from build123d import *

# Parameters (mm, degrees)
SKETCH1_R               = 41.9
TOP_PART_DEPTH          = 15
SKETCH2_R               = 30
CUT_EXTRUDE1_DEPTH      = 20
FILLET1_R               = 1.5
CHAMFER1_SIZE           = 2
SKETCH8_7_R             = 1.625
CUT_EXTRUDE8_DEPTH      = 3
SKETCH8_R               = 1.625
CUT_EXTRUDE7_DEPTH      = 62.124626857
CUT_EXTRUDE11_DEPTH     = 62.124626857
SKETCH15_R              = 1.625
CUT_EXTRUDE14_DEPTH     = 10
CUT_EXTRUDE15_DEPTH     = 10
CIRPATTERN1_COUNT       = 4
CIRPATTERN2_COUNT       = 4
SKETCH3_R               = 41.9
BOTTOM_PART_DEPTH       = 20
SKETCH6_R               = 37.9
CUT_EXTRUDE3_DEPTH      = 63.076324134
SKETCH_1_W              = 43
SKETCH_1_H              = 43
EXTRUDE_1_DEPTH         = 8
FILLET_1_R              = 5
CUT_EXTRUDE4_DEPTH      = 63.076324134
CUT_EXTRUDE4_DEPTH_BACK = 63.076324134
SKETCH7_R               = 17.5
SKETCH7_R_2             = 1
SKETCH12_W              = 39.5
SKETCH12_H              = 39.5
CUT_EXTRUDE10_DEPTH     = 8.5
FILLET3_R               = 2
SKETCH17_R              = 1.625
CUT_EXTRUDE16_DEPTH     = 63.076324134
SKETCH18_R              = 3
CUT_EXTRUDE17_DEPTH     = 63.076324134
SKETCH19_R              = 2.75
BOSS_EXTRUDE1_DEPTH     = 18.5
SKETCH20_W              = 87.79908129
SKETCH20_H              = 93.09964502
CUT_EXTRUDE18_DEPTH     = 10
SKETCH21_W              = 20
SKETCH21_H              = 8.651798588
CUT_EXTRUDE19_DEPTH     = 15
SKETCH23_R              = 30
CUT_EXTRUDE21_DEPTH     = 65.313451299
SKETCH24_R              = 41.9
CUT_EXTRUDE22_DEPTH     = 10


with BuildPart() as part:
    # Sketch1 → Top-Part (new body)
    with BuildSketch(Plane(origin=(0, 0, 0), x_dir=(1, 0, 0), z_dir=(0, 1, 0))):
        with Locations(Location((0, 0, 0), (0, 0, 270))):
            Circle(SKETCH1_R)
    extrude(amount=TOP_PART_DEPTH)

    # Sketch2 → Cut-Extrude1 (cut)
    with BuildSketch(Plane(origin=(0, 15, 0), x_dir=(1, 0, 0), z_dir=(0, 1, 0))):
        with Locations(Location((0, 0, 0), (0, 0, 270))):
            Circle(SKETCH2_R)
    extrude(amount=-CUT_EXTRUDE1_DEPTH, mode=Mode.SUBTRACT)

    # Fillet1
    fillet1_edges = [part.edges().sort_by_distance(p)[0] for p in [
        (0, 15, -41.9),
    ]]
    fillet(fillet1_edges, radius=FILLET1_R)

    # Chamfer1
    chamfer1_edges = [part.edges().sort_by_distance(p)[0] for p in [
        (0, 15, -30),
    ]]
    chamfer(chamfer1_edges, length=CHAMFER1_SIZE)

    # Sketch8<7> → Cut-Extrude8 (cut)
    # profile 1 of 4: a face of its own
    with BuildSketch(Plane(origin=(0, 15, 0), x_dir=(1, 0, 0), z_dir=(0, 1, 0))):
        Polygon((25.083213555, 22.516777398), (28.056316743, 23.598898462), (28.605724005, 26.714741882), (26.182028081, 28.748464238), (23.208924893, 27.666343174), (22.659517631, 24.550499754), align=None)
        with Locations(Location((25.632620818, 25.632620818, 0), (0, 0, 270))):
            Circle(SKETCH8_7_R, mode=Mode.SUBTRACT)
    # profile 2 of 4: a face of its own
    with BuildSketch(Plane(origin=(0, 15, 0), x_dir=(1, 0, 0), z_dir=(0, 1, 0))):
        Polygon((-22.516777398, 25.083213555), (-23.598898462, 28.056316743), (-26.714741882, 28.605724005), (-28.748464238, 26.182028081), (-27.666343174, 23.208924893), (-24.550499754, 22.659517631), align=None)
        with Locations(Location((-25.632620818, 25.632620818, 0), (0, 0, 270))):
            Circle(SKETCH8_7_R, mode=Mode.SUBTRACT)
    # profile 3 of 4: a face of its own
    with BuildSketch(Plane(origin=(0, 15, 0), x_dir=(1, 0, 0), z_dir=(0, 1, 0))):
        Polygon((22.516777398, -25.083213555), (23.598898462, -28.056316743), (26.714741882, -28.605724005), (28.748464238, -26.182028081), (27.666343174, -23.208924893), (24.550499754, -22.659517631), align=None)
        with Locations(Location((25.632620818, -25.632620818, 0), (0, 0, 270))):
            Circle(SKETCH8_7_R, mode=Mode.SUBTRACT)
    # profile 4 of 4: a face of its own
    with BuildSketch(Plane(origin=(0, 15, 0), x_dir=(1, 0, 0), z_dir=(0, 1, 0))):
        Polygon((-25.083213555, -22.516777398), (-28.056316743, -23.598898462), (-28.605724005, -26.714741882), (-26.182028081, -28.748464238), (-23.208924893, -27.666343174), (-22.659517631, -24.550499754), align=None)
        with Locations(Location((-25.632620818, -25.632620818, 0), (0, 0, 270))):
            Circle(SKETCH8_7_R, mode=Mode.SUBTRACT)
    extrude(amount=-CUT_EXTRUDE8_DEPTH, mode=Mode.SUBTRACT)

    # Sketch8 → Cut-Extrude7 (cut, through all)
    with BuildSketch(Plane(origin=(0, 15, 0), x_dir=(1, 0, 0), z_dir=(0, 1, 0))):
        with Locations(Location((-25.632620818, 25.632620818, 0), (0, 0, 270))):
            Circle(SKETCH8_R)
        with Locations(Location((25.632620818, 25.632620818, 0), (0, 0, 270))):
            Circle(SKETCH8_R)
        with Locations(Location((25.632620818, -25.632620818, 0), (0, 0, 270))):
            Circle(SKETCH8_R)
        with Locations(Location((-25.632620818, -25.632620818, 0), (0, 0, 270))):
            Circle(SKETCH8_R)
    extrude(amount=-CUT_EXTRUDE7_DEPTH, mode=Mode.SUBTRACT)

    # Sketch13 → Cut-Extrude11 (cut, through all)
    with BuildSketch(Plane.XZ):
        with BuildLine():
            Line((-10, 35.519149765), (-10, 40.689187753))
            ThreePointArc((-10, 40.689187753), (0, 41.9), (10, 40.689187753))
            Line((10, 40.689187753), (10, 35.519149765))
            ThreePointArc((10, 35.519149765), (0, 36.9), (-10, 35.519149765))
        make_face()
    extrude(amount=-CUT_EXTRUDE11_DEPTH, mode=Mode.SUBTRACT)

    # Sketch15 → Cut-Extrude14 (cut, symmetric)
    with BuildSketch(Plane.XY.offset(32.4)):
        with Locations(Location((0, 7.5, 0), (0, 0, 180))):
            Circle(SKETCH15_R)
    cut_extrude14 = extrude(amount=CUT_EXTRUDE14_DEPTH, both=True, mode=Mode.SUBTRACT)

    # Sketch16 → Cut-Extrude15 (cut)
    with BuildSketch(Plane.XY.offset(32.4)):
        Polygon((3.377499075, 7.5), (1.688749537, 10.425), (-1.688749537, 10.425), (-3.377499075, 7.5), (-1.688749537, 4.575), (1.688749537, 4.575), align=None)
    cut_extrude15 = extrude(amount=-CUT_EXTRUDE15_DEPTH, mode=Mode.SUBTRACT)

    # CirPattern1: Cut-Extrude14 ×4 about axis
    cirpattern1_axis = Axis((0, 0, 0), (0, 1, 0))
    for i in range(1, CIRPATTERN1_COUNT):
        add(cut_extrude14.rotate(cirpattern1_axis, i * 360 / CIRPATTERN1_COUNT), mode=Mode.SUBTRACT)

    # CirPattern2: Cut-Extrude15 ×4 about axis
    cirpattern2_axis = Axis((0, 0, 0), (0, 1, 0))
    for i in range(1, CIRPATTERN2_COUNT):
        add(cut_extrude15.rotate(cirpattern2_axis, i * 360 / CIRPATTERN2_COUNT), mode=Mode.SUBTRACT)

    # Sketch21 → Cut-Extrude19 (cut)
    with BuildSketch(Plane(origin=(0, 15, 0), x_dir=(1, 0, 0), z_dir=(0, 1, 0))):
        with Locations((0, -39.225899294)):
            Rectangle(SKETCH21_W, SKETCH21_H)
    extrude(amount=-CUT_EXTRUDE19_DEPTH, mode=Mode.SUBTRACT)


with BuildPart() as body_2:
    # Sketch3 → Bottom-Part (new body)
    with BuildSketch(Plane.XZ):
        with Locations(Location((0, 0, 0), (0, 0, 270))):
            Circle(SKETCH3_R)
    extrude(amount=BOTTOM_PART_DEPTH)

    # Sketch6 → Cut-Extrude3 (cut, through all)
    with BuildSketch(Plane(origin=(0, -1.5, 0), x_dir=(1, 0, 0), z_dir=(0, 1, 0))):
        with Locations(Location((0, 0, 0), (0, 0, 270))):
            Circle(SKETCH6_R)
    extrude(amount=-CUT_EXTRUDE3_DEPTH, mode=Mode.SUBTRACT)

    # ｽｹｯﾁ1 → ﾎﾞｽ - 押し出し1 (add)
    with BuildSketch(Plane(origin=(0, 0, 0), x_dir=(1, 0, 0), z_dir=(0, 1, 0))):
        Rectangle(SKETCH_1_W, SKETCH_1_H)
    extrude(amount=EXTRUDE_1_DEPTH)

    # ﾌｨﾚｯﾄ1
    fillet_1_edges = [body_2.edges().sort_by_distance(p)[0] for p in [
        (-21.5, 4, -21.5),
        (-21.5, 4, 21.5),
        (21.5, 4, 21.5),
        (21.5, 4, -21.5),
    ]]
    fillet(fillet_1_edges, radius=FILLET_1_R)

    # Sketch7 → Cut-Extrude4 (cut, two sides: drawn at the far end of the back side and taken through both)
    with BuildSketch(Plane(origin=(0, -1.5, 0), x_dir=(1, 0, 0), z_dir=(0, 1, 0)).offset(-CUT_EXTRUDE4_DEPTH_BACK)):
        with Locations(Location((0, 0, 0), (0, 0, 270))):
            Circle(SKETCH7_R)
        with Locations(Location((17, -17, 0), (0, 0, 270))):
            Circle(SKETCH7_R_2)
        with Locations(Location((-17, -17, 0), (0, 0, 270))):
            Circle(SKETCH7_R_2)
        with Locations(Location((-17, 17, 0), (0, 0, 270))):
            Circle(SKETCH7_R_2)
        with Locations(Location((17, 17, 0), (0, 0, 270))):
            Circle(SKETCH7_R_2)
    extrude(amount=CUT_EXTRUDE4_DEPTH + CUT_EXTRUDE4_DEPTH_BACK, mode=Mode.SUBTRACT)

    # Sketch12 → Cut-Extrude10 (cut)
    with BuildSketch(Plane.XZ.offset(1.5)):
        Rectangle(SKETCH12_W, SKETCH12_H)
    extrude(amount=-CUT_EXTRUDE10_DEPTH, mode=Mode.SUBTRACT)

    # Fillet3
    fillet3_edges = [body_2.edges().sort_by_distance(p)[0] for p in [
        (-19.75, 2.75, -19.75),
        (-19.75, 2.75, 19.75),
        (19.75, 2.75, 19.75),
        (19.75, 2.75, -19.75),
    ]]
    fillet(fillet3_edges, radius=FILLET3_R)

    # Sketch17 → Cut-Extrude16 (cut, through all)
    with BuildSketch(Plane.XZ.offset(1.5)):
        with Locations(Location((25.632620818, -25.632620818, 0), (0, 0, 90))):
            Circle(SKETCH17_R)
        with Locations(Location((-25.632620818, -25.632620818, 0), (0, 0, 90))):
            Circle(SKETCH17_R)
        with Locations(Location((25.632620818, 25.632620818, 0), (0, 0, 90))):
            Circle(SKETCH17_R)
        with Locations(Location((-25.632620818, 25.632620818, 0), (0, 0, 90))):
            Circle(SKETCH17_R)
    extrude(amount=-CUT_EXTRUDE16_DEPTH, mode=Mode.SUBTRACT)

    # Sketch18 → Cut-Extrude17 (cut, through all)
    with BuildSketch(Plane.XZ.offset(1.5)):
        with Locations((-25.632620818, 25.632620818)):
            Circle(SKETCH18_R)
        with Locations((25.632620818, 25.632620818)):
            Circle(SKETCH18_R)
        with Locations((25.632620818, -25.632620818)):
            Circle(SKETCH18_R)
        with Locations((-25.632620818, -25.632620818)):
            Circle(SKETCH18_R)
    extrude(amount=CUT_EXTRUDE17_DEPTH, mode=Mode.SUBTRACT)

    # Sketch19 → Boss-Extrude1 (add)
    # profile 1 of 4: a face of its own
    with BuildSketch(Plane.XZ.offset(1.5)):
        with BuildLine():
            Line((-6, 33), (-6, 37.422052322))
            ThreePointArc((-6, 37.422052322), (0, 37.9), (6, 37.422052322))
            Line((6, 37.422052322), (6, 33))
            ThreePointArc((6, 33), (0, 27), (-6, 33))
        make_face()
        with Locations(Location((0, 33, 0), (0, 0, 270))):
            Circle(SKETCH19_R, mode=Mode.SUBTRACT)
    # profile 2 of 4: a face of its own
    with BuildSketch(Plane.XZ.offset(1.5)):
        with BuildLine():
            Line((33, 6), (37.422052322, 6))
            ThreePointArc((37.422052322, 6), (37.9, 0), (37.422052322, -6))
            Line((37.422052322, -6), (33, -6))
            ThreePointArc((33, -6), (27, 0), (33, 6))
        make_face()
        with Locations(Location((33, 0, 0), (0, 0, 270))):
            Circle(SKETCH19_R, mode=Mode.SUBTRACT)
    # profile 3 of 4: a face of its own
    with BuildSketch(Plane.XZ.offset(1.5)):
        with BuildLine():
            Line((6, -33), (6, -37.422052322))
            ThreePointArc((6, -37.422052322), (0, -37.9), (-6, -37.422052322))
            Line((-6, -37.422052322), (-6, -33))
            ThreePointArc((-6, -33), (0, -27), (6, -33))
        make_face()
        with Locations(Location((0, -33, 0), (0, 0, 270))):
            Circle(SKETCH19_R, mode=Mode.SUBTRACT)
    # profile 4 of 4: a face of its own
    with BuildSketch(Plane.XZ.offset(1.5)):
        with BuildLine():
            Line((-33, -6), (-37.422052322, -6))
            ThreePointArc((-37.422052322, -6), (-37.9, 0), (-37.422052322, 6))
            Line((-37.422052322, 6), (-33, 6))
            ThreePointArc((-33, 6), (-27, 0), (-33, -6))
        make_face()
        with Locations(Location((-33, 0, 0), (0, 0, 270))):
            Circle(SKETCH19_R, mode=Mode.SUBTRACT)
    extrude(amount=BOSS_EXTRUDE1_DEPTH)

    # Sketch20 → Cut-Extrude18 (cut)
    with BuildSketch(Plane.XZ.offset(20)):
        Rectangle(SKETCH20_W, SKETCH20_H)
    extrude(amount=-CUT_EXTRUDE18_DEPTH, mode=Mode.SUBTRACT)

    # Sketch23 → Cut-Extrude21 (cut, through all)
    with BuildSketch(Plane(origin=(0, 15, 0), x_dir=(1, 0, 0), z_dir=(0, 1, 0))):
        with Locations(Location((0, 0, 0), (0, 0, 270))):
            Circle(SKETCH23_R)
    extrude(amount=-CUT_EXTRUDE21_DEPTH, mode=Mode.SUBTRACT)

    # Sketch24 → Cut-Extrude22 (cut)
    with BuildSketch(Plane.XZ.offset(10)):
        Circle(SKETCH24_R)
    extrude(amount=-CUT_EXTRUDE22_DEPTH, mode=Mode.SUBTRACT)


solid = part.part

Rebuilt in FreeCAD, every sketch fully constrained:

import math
import FreeCAD as App
import Part
import Sketcher
from FreeCAD import Vector
Q = App.Units.Quantity


def edges_at(feature, points):
    """Names of the edges that pass closest to the given points."""
    edges = feature.Shape.Edges
    near = lambda p: min(range(len(edges)), key=lambda i: edges[i].distToShape(Part.Vertex(*p))[0])
    return sorted({f"Edge{near(p) + 1}" for p in points})


def add_polygon(sketch, points):
    """Adds a closed chain of lines whose ends are joined by coincident constraints."""
    first, n = sketch.GeometryCount, len(points)
    for a, b in zip(points, points[1:] + points[:1]):
        sketch.addGeometry(Part.LineSegment(App.Vector(*a, 0), App.Vector(*b, 0)), False)
    for i in range(n):
        sketch.addConstraint(Sketcher.Constraint("Coincident", first + i, 2, first + (i + 1) % n, 1))

doc = App.newDocument("Part")
params = doc.addObject("Spreadsheet::Sheet", "Params")
for row, (alias, value) in enumerate([
    ("sketch1_diameter", "83.8 mm"),
    ("pad1_length", "15 mm"),
    ("sketch2_diameter", "60 mm"),
    ("pocket1_length", "20 mm"),
    ("fillet_radius", "1.5 mm"),
    ("chamfer_size", "2 mm"),
    ("sketch3_diameter", "3.25 mm"),
    ("pocket2_length", "3 mm"),
    ("sketch4_diameter", "3.25 mm"),
    ("sketch5_radius", "36.9 mm"),
    ("sketch5_radius2", "41.9 mm"),
    ("sketch6_diameter", "3.25 mm"),
    ("pocket5_length", "20 mm"),
    ("pocket6_length", "10 mm"),
    ("sketch8_width", "20 mm"),
    ("pocket7_length", "15 mm"),
    ("sketch9_diameter", "83.8 mm"),
    ("pad2_length", "20 mm"),
    ("sketch10_diameter", "75.8 mm"),
    ("sketch11_width", "43 mm"),
    ("pad3_length", "8 mm"),
    ("fillet2_radius", "5 mm"),
    ("sketch12_diameter", "35 mm"),
    ("sketch12_diameter2", "2 mm"),
    ("sketch13_width", "39.5 mm"),
    ("pocket10_length", "8.5 mm"),
    ("fillet3_radius", "2 mm"),
    ("sketch14_diameter", "3.25 mm"),
    ("sketch15_diameter", "6 mm"),
    ("sketch16_radius", "6 mm"),
    ("sketch16_diameter", "5.5 mm"),
    ("sketch16_radius2", "37.9 mm"),
    ("pad4_length", "18.5 mm"),
    ("pocket13_length", "10 mm"),
    ("sketch18_diameter", "60 mm"),
    ("sketch19_diameter", "83.8 mm"),
    ("pocket15_length", "10 mm"),
], start=1):
    params.set(f"A{row}", alias)
    params.set(f"B{row}", "=" + value)
    params.setAlias(f"B{row}", alias)

body = doc.addObject("PartDesign::Body", "Body")

# Sketch on XZ plane
sketch1 = body.newObject("Sketcher::SketchObject", "Sketch")
sketch1.AttachmentSupport = (doc.getObject("XZ_Plane"), [""])
sketch1.MapMode = "FlatFace"
sketch1.addGeometry(Part.Circle(Vector(0, 0, 0), Vector(0, 0, 1), 41.9), False)
sketch1.addConstraint([
    Sketcher.Constraint("Coincident", 0, 3, -1, 1),
    Sketcher.Constraint("Diameter", 0, Q("83.8 mm")),
])
sketch1.setExpression("Constraints[1]", "Params.sketch1_diameter")
pad1 = body.newObject("PartDesign::Pad", "Pad")
pad1.Profile = sketch1
pad1.setExpression("Length", "Params.pad1_length")
pad1.Reversed = True

# Sketch on XZ plane
sketch2 = body.newObject("Sketcher::SketchObject", "Sketch001")
sketch2.AttachmentSupport = (doc.getObject("XZ_Plane"), [""])
sketch2.MapMode = "FlatFace"
sketch2.AttachmentOffset = App.Placement(Vector(0, 0, -15), App.Rotation())
sketch2.addGeometry(Part.Circle(Vector(0, 0, 0), Vector(0, 0, 1), 30), False)
sketch2.addConstraint([
    Sketcher.Constraint("Coincident", 0, 3, -1, 1),
    Sketcher.Constraint("Diameter", 0, Q("60 mm")),
])
sketch2.setExpression("Constraints[1]", "Params.sketch2_diameter")
pocket1 = body.newObject("PartDesign::Pocket", "Pocket")
pocket1.Profile = sketch2
pocket1.setExpression("Length", "Params.pocket1_length")
pocket1.Reversed = True
doc.recompute()

fillet = body.newObject("PartDesign::Fillet", "Fillet")
fillet.Base = (pocket1, edges_at(pocket1, [(0, 15, -41.9)]))
fillet.setExpression("Radius", "Params.fillet_radius")
doc.recompute()

chamfer = body.newObject("PartDesign::Chamfer", "Chamfer")
chamfer.Base = (fillet, edges_at(fillet, [(0, 15, -30)]))
chamfer.setExpression("Size", "Params.chamfer_size")

# Sketch on XZ plane
sketch3 = body.newObject("Sketcher::SketchObject", "Sketch002")
sketch3.AttachmentSupport = (doc.getObject("XZ_Plane"), [""])
sketch3.MapMode = "FlatFace"
sketch3.AttachmentOffset = App.Placement(Vector(0, 0, -15), App.Rotation())
add_polygon(sketch3, [(25.083214, -22.516777), (28.056317, -23.598898), (28.605724, -26.714742), (26.182028, -28.748464), (23.208925, -27.666343), (22.659518, -24.5505)])  # lines 0-5
sketch3.addGeometry(Part.Circle(Vector(25.632621, -25.632621, 0), Vector(0, 0, 1), 1.625), False)  # 6
add_polygon(sketch3, [(-22.516777, -25.083214), (-23.598898, -28.056317), (-26.714742, -28.605724), (-28.748464, -26.182028), (-27.666343, -23.208925), (-24.5505, -22.659518)])  # lines 7-12
sketch3.addGeometry(Part.Circle(Vector(-25.632621, -25.632621, 0), Vector(0, 0, 1), 1.625), False)  # 13
add_polygon(sketch3, [(22.516777, 25.083214), (23.598898, 28.056317), (26.714742, 28.605724), (28.748464, 26.182028), (27.666343, 23.208925), (24.5505, 22.659518)])  # lines 14-19
sketch3.addGeometry(Part.Circle(Vector(25.632621, 25.632621, 0), Vector(0, 0, 1), 1.625), False)  # 20
add_polygon(sketch3, [(-25.083214, 22.516777), (-28.056317, 23.598898), (-28.605724, 26.714742), (-26.182028, 28.748464), (-23.208925, 27.666343), (-22.659518, 24.5505)])  # lines 21-26
sketch3.addGeometry(Part.Circle(Vector(-25.632621, 25.632621, 0), Vector(0, 0, 1), 1.625), False)  # 27
sketch3.addConstraint([
    Sketcher.Constraint("Equal", 6, 13),
    Sketcher.Constraint("Equal", 13, 20),
    Sketcher.Constraint("Equal", 20, 27),
    Sketcher.Constraint("Symmetric", 13, 3, 20, 3, -1, 1),
    Sketcher.Constraint("Symmetric", 6, 3, 27, 3, -1, 1),
    Sketcher.Constraint("Symmetric", 7, 2, 14, 2, -1, 1),
    Sketcher.Constraint("Symmetric", 8, 2, 15, 2, -1, 1),
    Sketcher.Constraint("Symmetric", 9, 2, 16, 2, -1, 1),
    Sketcher.Constraint("Symmetric", 10, 2, 17, 2, -1, 1),
    Sketcher.Constraint("Symmetric", 11, 2, 18, 2, -1, 1),
    Sketcher.Constraint("Symmetric", 12, 2, 19, 2, -1, 1),
    Sketcher.Constraint("Symmetric", 0, 2, 21, 2, -1, 1),
    Sketcher.Constraint("Symmetric", 1, 2, 22, 2, -1, 1),
    Sketcher.Constraint("Symmetric", 2, 2, 23, 2, -1, 1),
    Sketcher.Constraint("Symmetric", 3, 2, 24, 2, -1, 1),
    Sketcher.Constraint("Symmetric", 4, 2, 25, 2, -1, 1),
    Sketcher.Constraint("Symmetric", 5, 2, 26, 2, -1, 1),
    Sketcher.Constraint("Symmetric", 6, 3, 13, 3, -2),
    Sketcher.Constraint("Parallel", 0, 3),
    Sketcher.Constraint("Parallel", 1, 4),
    Sketcher.Constraint("Parallel", 2, 5),
    Sketcher.Constraint("Perpendicular", 3, 7),
    Sketcher.Constraint("Perpendicular", 4, 8),
    Sketcher.Constraint("Perpendicular", 5, 9),
    Sketcher.Constraint("Parallel", 7, 10),
    Sketcher.Constraint("Parallel", 8, 11),
    Sketcher.Constraint("Parallel", 9, 12),
    Sketcher.Constraint("Equal", 0, 1),
    Sketcher.Constraint("Equal", 1, 2),
    Sketcher.Constraint("Equal", 2, 3),
    Sketcher.Constraint("Equal", 5, 7),
    Sketcher.Constraint("Equal", 7, 8),
    Sketcher.Constraint("Equal", 8, 9),
    Sketcher.Constraint("Equal", 9, 10),
    Sketcher.Constraint("Diameter", 6, Q("3.25 mm")),
    Sketcher.Constraint("Angle", 0, Q("-20 deg")),
    Sketcher.Constraint("Angle", 1, Q("-80 deg")),
    Sketcher.Constraint("Angle", 2, Q("-140 deg")),
    Sketcher.Constraint("DistanceY", 0, 2, -1, 1, Q("23.598898 mm")),
    Sketcher.Constraint("DistanceY", 4, 2, -1, 1, Q("24.5505 mm")),
    Sketcher.Constraint("DistanceX", 7, 2, -1, 1, Q("23.598898 mm")),
    Sketcher.Constraint("DistanceY", 5, 2, 15, 2, Q("51.122501 mm")),
    Sketcher.Constraint("DistanceX", 22, 2, 19, 2, Q("51.122501 mm")),
    Sketcher.Constraint("DistanceX", -1, 1, 6, 3, Q("25.632621 mm")),
    Sketcher.Constraint("DistanceY", 6, 3, -1, 1, Q("25.632621 mm")),
])
sketch3.setExpression("Constraints[58]", "Params.sketch3_diameter")
pocket2 = body.newObject("PartDesign::Pocket", "Pocket001")
pocket2.Profile = sketch3
pocket2.setExpression("Length", "Params.pocket2_length")
pocket2.Reversed = True

# Sketch on XZ plane
sketch4 = body.newObject("Sketcher::SketchObject", "Sketch003")
sketch4.AttachmentSupport = (doc.getObject("XZ_Plane"), [""])
sketch4.MapMode = "FlatFace"
sketch4.AttachmentOffset = App.Placement(Vector(0, 0, -15), App.Rotation())
sketch4.addGeometry([
    Part.Circle(Vector(-25.632621, -25.632621, 0), Vector(0, 0, 1), 1.625),
    Part.Circle(Vector(25.632621, -25.632621, 0), Vector(0, 0, 1), 1.625),
    Part.Circle(Vector(25.632621, 25.632621, 0), Vector(0, 0, 1), 1.625),
    Part.Circle(Vector(-25.632621, 25.632621, 0), Vector(0, 0, 1), 1.625),
], False)
sketch4.addConstraint([
    Sketcher.Constraint("Equal", 0, 1),
    Sketcher.Constraint("Equal", 1, 2),
    Sketcher.Constraint("Equal", 2, 3),
    Sketcher.Constraint("Symmetric", 0, 3, 2, 3, -1, 1),
    Sketcher.Constraint("Symmetric", 1, 3, 3, 3, -1, 1),
    Sketcher.Constraint("Symmetric", 0, 3, 1, 3, -2),
    Sketcher.Constraint("Diameter", 0, Q("3.25 mm")),
    Sketcher.Constraint("DistanceX", 0, 3, -1, 1, Q("25.632621 mm")),
    Sketcher.Constraint("DistanceY", 0, 3, -1, 1, Q("25.632621 mm")),
])
sketch4.setExpression("Constraints[6]", "Params.sketch4_diameter")
pocket3 = body.newObject("PartDesign::Pocket", "Pocket002")
pocket3.Profile = sketch4
pocket3.Type = "ThroughAll"
pocket3.Reversed = True

# Sketch on XZ plane
sketch5 = body.newObject("Sketcher::SketchObject", "Sketch004")
sketch5.AttachmentSupport = (doc.getObject("XZ_Plane"), [""])
sketch5.MapMode = "FlatFace"
sketch5.addGeometry([
    Part.LineSegment(Vector(-10, 40.689188, 0), Vector(-10, 35.51915, 0)),
    Part.ArcOfCircle(Part.Circle(Vector(0, 0, 0), Vector(0, 0, 1), 36.9), math.radians(74.276057), math.radians(105.723943)),
    Part.LineSegment(Vector(10, 35.51915, 0), Vector(10, 40.689188, 0)),
    Part.ArcOfCircle(Part.Circle(Vector(0, 0, 0), Vector(0, 0, 1), 41.9), math.radians(76.192328), math.radians(103.807672)),
], False)
sketch5.addConstraint([
    Sketcher.Constraint("Coincident", 0, 2, 1, 2),
    Sketcher.Constraint("Coincident", 1, 1, 2, 1),
    Sketcher.Constraint("Coincident", 2, 2, 3, 1),
    Sketcher.Constraint("Coincident", 3, 2, 0, 1),
    Sketcher.Constraint("Vertical", 0),
    Sketcher.Constraint("Vertical", 2),
    Sketcher.Constraint("Coincident", 1, 3, -1, 1),
    Sketcher.Constraint("Coincident", 3, 3, -1, 1),
    Sketcher.Constraint("Horizontal", 0, 2, 1, 1),
    Sketcher.Constraint("Radius", 1, Q("36.9 mm")),
    Sketcher.Constraint("Radius", 3, Q("41.9 mm")),
    Sketcher.Constraint("DistanceX", 0, 2, -1, 1, Q("10 mm")),
])
sketch5.setExpression("Constraints[9]", "Params.sketch5_radius")
sketch5.setExpression("Constraints[10]", "Params.sketch5_radius2")
pocket4 = body.newObject("PartDesign::Pocket", "Pocket003")
pocket4.Profile = sketch5
pocket4.Type = "ThroughAll"

# Sketch on XY plane
sketch6 = body.newObject("Sketcher::SketchObject", "Sketch005")
sketch6.AttachmentSupport = (doc.getObject("XY_Plane"), [""])
sketch6.MapMode = "FlatFace"
sketch6.AttachmentOffset = App.Placement(Vector(0, 0, 32.4), App.Rotation())
sketch6.addGeometry(Part.Circle(Vector(0, 7.5, 0), Vector(0, 0, 1), 1.625), False)
sketch6.addConstraint([
    Sketcher.Constraint("PointOnObject", 0, 3, -2),
    Sketcher.Constraint("Diameter", 0, Q("3.25 mm")),
    Sketcher.Constraint("DistanceY", -1, 1, 0, 3, Q("7.5 mm")),
])
sketch6.setExpression("Constraints[1]", "Params.sketch6_diameter")
pocket5 = body.newObject("PartDesign::Pocket", "Pocket004")
pocket5.Profile = sketch6
pocket5.setExpression("Length", "Params.pocket5_length")
pocket5.Midplane = True

# Sketch on XY plane
sketch7 = body.newObject("Sketcher::SketchObject", "Sketch006")
sketch7.AttachmentSupport = (doc.getObject("XY_Plane"), [""])
sketch7.MapMode = "FlatFace"
sketch7.AttachmentOffset = App.Placement(Vector(0, 0, 32.4), App.Rotation())
add_polygon(sketch7, [(3.377499, 7.5), (1.68875, 10.425), (-1.68875, 10.425), (-3.377499, 7.5), (-1.68875, 4.575), (1.68875, 4.575)])  # lines 0-5
sketch7.addConstraint([
    Sketcher.Constraint("Horizontal", 1),
    Sketcher.Constraint("Horizontal", 4),
    Sketcher.Constraint("Symmetric", 2, 2, 5, 2, -2),
    Sketcher.Constraint("Parallel", 0, 3),
    Sketcher.Constraint("Parallel", 2, 5),
    Sketcher.Constraint("Vertical", 1, 2, 3, 2),
    Sketcher.Constraint("Vertical", 0, 2, 4, 2),
    Sketcher.Constraint("Angle", 0, Q("120 deg")),
    Sketcher.Constraint("DistanceY", -1, 1, 2, 2, Q("7.5 mm")),
    Sketcher.Constraint("DistanceY", 3, 2, 1, 2, Q("5.85 mm")),
    Sketcher.Constraint("DistanceX", 1, 2, 1, 1, Q("3.377499 mm")),
])
pocket6 = body.newObject("PartDesign::Pocket", "Pocket005")
pocket6.Profile = sketch7
pocket6.setExpression("Length", "Params.pocket6_length")
doc.recompute()

polarpattern = body.newObject("PartDesign::PolarPattern", "PolarPattern")
polarpattern.Originals = [pocket5]
polarpattern.Axis = (doc.getObject("Y_Axis"), [""])
polarpattern.Angle = 360
polarpattern.Occurrences = 4
body.Tip = polarpattern
doc.recompute()

polarpattern2 = body.newObject("PartDesign::PolarPattern", "PolarPattern001")
polarpattern2.Originals = [pocket6]
polarpattern2.Axis = (doc.getObject("Y_Axis"), [""])
polarpattern2.Angle = 360
polarpattern2.Occurrences = 4
body.Tip = polarpattern2

# Sketch on XZ plane
sketch8 = body.newObject("Sketcher::SketchObject", "Sketch007")
sketch8.AttachmentSupport = (doc.getObject("XZ_Plane"), [""])
sketch8.MapMode = "FlatFace"
sketch8.AttachmentOffset = App.Placement(Vector(0, 0, -15), App.Rotation())
add_polygon(sketch8, [(-10, 34.9), (-10, 43.551799), (10, 43.551799), (10, 34.9)])  # lines 0-3
sketch8.addConstraint([
    Sketcher.Constraint("Vertical", 0),
    Sketcher.Constraint("Horizontal", 1),
    Sketcher.Constraint("Vertical", 2),
    Sketcher.Constraint("Horizontal", 3),
    Sketcher.Constraint("DistanceX", 1, 1, 1, 2, Q("20 mm")),
    Sketcher.Constraint("DistanceX", 0, 2, -1, 1, Q("10 mm")),
    Sketcher.Constraint("DistanceY", -1, 1, 2, 2, Q("34.9 mm")),
    Sketcher.Constraint("DistanceY", 0, 1, 0, 2, Q("8.651799 mm")),
])
sketch8.setExpression("Constraints[8]", "Params.sketch8_width")
pocket7 = body.newObject("PartDesign::Pocket", "Pocket006")
pocket7.Profile = sketch8
pocket7.setExpression("Length", "Params.pocket7_length")
pocket7.Reversed = True
body2 = doc.addObject("PartDesign::Body", "Body001")

# Sketch on XZ plane
sketch9 = body2.newObject("Sketcher::SketchObject", "Sketch008")
sketch9.AttachmentSupport = (doc.getObject("XZ_Plane001"), [""])
sketch9.MapMode = "FlatFace"
sketch9.addGeometry(Part.Circle(Vector(0, 0, 0), Vector(0, 0, 1), 41.9), False)
sketch9.addConstraint([
    Sketcher.Constraint("Coincident", 0, 3, -1, 1),
    Sketcher.Constraint("Diameter", 0, Q("83.8 mm")),
])
sketch9.setExpression("Constraints[1]", "Params.sketch9_diameter")
pad2 = body2.newObject("PartDesign::Pad", "Pad001")
pad2.Profile = sketch9
pad2.setExpression("Length", "Params.pad2_length")

# Sketch on XZ plane
sketch10 = body2.newObject("Sketcher::SketchObject", "Sketch009")
sketch10.AttachmentSupport = (doc.getObject("XZ_Plane001"), [""])
sketch10.MapMode = "FlatFace"
sketch10.AttachmentOffset = App.Placement(Vector(0, 0, 1.5), App.Rotation())
sketch10.addGeometry(Part.Circle(Vector(0, 0, 0), Vector(0, 0, 1), 37.9), False)
sketch10.addConstraint([
    Sketcher.Constraint("Coincident", 0, 3, -1, 1),
    Sketcher.Constraint("Diameter", 0, Q("75.8 mm")),
])
sketch10.setExpression("Constraints[1]", "Params.sketch10_diameter")
pocket8 = body2.newObject("PartDesign::Pocket", "Pocket007")
pocket8.Profile = sketch10
pocket8.Type = "ThroughAll"
pocket8.Reversed = True

# Sketch on XZ plane
sketch11 = body2.newObject("Sketcher::SketchObject", "Sketch010")
sketch11.AttachmentSupport = (doc.getObject("XZ_Plane001"), [""])
sketch11.MapMode = "FlatFace"
add_polygon(sketch11, [(-21.5, -21.5), (-21.5, 21.5), (21.5, 21.5), (21.5, -21.5)])  # lines 0-3
sketch11.addConstraint([
    Sketcher.Constraint("Vertical", 0),
    Sketcher.Constraint("Horizontal", 1),
    Sketcher.Constraint("Vertical", 2),
    Sketcher.Constraint("Horizontal", 3),
    Sketcher.Constraint("Symmetric", 0, 2, 2, 2, -1, 1),
    Sketcher.Constraint("Equal", 3, 0),
    Sketcher.Constraint("DistanceX", 1, 1, 1, 2, Q("43 mm")),
])
sketch11.setExpression("Constraints[10]", "Params.sketch11_width")
pad3 = body2.newObject("PartDesign::Pad", "Pad002")
pad3.Profile = sketch11
pad3.setExpression("Length", "Params.pad3_length")
pad3.Reversed = True
doc.recompute()

fillet2 = body2.newObject("PartDesign::Fillet", "Fillet001")
fillet2.Base = (pad3, edges_at(pad3, [
    (-21.5, 4, -21.5),
    (-21.5, 4, 21.5),
    (21.5, 4, 21.5),
    (21.5, 4, -21.5),
]))
fillet2.setExpression("Radius", "Params.fillet2_radius")

# Sketch on XZ plane
sketch12 = body2.newObject("Sketcher::SketchObject", "Sketch011")
sketch12.AttachmentSupport = (doc.getObject("XZ_Plane001"), [""])
sketch12.MapMode = "FlatFace"
sketch12.AttachmentOffset = App.Placement(Vector(0, 0, 1.5), App.Rotation())
sketch12.addGeometry([
    Part.Circle(Vector(0, 0, 0), Vector(0, 0, 1), 17.5),  # 0
    Part.Circle(Vector(17, 17, 0), Vector(0, 0, 1), 1),  # 1
    Part.Circle(Vector(-17, 17, 0), Vector(0, 0, 1), 1),  # 2
    Part.Circle(Vector(-17, -17, 0), Vector(0, 0, 1), 1),  # 3
    Part.Circle(Vector(17, -17, 0), Vector(0, 0, 1), 1),  # 4
], False)
sketch12.addConstraint([
    Sketcher.Constraint("Coincident", 0, 3, -1, 1),
    Sketcher.Constraint("Equal", 1, 2),
    Sketcher.Constraint("Equal", 2, 3),
    Sketcher.Constraint("Equal", 3, 4),
    Sketcher.Constraint("Symmetric", 1, 3, 3, 3, -1, 1),
    Sketcher.Constraint("Symmetric", 2, 3, 4, 3, -1, 1),
    Sketcher.Constraint("Symmetric", 1, 3, 2, 3, -2),
    Sketcher.Constraint("Diameter", 0, Q("35 mm")),
    Sketcher.Constraint("Diameter", 1, Q("2 mm")),
    Sketcher.Constraint("DistanceX", -1, 1, 1, 3, Q("17 mm")),
    Sketcher.Constraint("DistanceY", -1, 1, 1, 3, Q("17 mm")),
])
sketch12.setExpression("Constraints[7]", "Params.sketch12_diameter")
sketch12.setExpression("Constraints[8]", "Params.sketch12_diameter2")
pocket9 = body2.newObject("PartDesign::Pocket", "Pocket008")
pocket9.Profile = sketch12
pocket9.Type = "ThroughAll"
pocket9.Midplane = True

# Sketch on XZ plane
sketch13 = body2.newObject("Sketcher::SketchObject", "Sketch012")
sketch13.AttachmentSupport = (doc.getObject("XZ_Plane001"), [""])
sketch13.MapMode = "FlatFace"
sketch13.AttachmentOffset = App.Placement(Vector(0, 0, 1.5), App.Rotation())
add_polygon(sketch13, [(-19.75, 19.75), (-19.75, -19.75), (19.75, -19.75), (19.75, 19.75)])  # lines 0-3
sketch13.addConstraint([
    Sketcher.Constraint("Vertical", 0),
    Sketcher.Constraint("Horizontal", 1),
    Sketcher.Constraint("Vertical", 2),
    Sketcher.Constraint("Horizontal", 3),
    Sketcher.Constraint("Symmetric", 0, 2, 2, 2, -1, 1),
    Sketcher.Constraint("Equal", 3, 0),
    Sketcher.Constraint("DistanceX", 1, 1, 1, 2, Q("39.5 mm")),
])
sketch13.setExpression("Constraints[10]", "Params.sketch13_width")
pocket10 = body2.newObject("PartDesign::Pocket", "Pocket009")
pocket10.Profile = sketch13
pocket10.setExpression("Length", "Params.pocket10_length")
doc.recompute()

fillet3 = body2.newObject("PartDesign::Fillet", "Fillet002")
fillet3.Base = (pocket10, edges_at(pocket10, [
    (-19.75, 2.75, -19.75),
    (-19.75, 2.75, 19.75),
    (19.75, 2.75, 19.75),
    (19.75, 2.75, -19.75),
]))
fillet3.setExpression("Radius", "Params.fillet3_radius")

# Sketch on XZ plane
sketch14 = body2.newObject("Sketcher::SketchObject", "Sketch013")
sketch14.AttachmentSupport = (doc.getObject("XZ_Plane001"), [""])
sketch14.MapMode = "FlatFace"
sketch14.AttachmentOffset = App.Placement(Vector(0, 0, 1.5), App.Rotation())
sketch14.addGeometry([
    Part.Circle(Vector(25.632621, -25.632621, 0), Vector(0, 0, 1), 1.625),
    Part.Circle(Vector(-25.632621, -25.632621, 0), Vector(0, 0, 1), 1.625),
    Part.Circle(Vector(25.632621, 25.632621, 0), Vector(0, 0, 1), 1.625),
    Part.Circle(Vector(-25.632621, 25.632621, 0), Vector(0, 0, 1), 1.625),
], False)
sketch14.addConstraint([
    Sketcher.Constraint("Equal", 0, 1),
    Sketcher.Constraint("Equal", 1, 2),
    Sketcher.Constraint("Equal", 2, 3),
    Sketcher.Constraint("Symmetric", 1, 3, 2, 3, -1, 1),
    Sketcher.Constraint("Symmetric", 0, 3, 3, 3, -1, 1),
    Sketcher.Constraint("Symmetric", 0, 3, 1, 3, -2),
    Sketcher.Constraint("Diameter", 0, Q("3.25 mm")),
    Sketcher.Constraint("DistanceX", -1, 1, 0, 3, Q("25.632621 mm")),
    Sketcher.Constraint("DistanceY", 0, 3, -1, 1, Q("25.632621 mm")),
])
sketch14.setExpression("Constraints[6]", "Params.sketch14_diameter")
pocket11 = body2.newObject("PartDesign::Pocket", "Pocket010")
pocket11.Profile = sketch14
pocket11.Type = "ThroughAll"

# Sketch on XZ plane
sketch15 = body2.newObject("Sketcher::SketchObject", "Sketch014")
sketch15.AttachmentSupport = (doc.getObject("XZ_Plane001"), [""])
sketch15.MapMode = "FlatFace"
sketch15.AttachmentOffset = App.Placement(Vector(0, 0, 1.5), App.Rotation())
sketch15.addGeometry([
    Part.Circle(Vector(-25.632621, 25.632621, 0), Vector(0, 0, 1), 3),
    Part.Circle(Vector(25.632621, 25.632621, 0), Vector(0, 0, 1), 3),
    Part.Circle(Vector(25.632621, -25.632621, 0), Vector(0, 0, 1), 3),
    Part.Circle(Vector(-25.632621, -25.632621, 0), Vector(0, 0, 1), 3),
], False)
sketch15.addConstraint([
    Sketcher.Constraint("Equal", 0, 1),
    Sketcher.Constraint("Equal", 1, 2),
    Sketcher.Constraint("Equal", 2, 3),
    Sketcher.Constraint("Symmetric", 0, 3, 2, 3, -1, 1),
    Sketcher.Constraint("Symmetric", 1, 3, 3, 3, -1, 1),
    Sketcher.Constraint("Symmetric", 0, 3, 1, 3, -2),
    Sketcher.Constraint("Diameter", 0, Q("6 mm")),
    Sketcher.Constraint("DistanceX", 0, 3, -1, 1, Q("25.632621 mm")),
    Sketcher.Constraint("DistanceY", -1, 1, 0, 3, Q("25.632621 mm")),
])
sketch15.setExpression("Constraints[6]", "Params.sketch15_diameter")
pocket12 = body2.newObject("PartDesign::Pocket", "Pocket011")
pocket12.Profile = sketch15
pocket12.Type = "ThroughAll"
pocket12.Reversed = True

# Sketch on XZ plane
sketch16 = body2.newObject("Sketcher::SketchObject", "Sketch015")
sketch16.AttachmentSupport = (doc.getObject("XZ_Plane001"), [""])
sketch16.MapMode = "FlatFace"
sketch16.AttachmentOffset = App.Placement(Vector(0, 0, 1.5), App.Rotation())
sketch16.addGeometry([
    Part.LineSegment(Vector(-6, 37.422052, 0), Vector(-6, 33, 0)),  # 0
    Part.ArcOfCircle(Part.Circle(Vector(0, 33, 0), Vector(0, 0, 1), 6), math.radians(180), math.radians(360)),  # 1
    Part.LineSegment(Vector(6, 33, 0), Vector(6, 37.422052, 0)),  # 2
    Part.ArcOfCircle(Part.Circle(Vector(0, 0, 0), Vector(0, 0, 1), 37.9), math.radians(80.891106), math.radians(99.108894)),  # 3
    Part.Circle(Vector(0, 33, 0), Vector(0, 0, 1), 2.75),  # 4
    Part.LineSegment(Vector(37.422052, 6, 0), Vector(33, 6, 0)),  # 5
    Part.ArcOfCircle(Part.Circle(Vector(33, 0, 0), Vector(0, 0, 1), 6), math.radians(90), math.radians(270)),  # 6
    Part.LineSegment(Vector(33, -6, 0), Vector(37.422052, -6, 0)),  # 7
    Part.ArcOfCircle(Part.Circle(Vector(0, 0, 0), Vector(0, 0, 1), 37.9), math.radians(-9.108894), math.radians(9.108894)),  # 8
    Part.Circle(Vector(33, 0, 0), Vector(0, 0, 1), 2.75),  # 9
    Part.LineSegment(Vector(6, -37.422052, 0), Vector(6, -33, 0)),  # 10
    Part.ArcOfCircle(Part.Circle(Vector(0, -33, 0), Vector(0, 0, 1), 6), math.radians(0), math.radians(180)),  # 11
    Part.LineSegment(Vector(-6, -33, 0), Vector(-6, -37.422052, 0)),  # 12
    Part.ArcOfCircle(Part.Circle(Vector(0, 0, 0), Vector(0, 0, 1), 37.9), math.radians(-99.108894), math.radians(-80.891106)),  # 13
    Part.Circle(Vector(0, -33, 0), Vector(0, 0, 1), 2.75),  # 14
    Part.LineSegment(Vector(-37.422052, -6, 0), Vector(-33, -6, 0)),  # 15
    Part.ArcOfCircle(Part.Circle(Vector(-33, 0, 0), Vector(0, 0, 1), 6), math.radians(-90), math.radians(90)),  # 16
    Part.LineSegment(Vector(-33, 6, 0), Vector(-37.422052, 6, 0)),  # 17
    Part.ArcOfCircle(Part.Circle(Vector(0, 0, 0), Vector(0, 0, 1), 37.9), math.radians(170.891106), math.radians(189.108894)),  # 18
    Part.Circle(Vector(-33, 0, 0), Vector(0, 0, 1), 2.75),  # 19
], False)
sketch16.addConstraint([
    Sketcher.Constraint("Tangent", 0, 2, 1, 1),
    Sketcher.Constraint("Tangent", 1, 2, 2, 1),
    Sketcher.Constraint("Coincident", 2, 2, 3, 1),
    Sketcher.Constraint("Coincident", 3, 2, 0, 1),
    Sketcher.Constraint("Tangent", 5, 2, 6, 1),
    Sketcher.Constraint("Tangent", 6, 2, 7, 1),
    Sketcher.Constraint("Coincident", 7, 2, 8, 1),
    Sketcher.Constraint("Coincident", 8, 2, 5, 1),
    Sketcher.Constraint("Tangent", 10, 2, 11, 1),
    Sketcher.Constraint("Tangent", 11, 2, 12, 1),
    Sketcher.Constraint("Coincident", 12, 2, 13, 1),
    Sketcher.Constraint("Coincident", 13, 2, 10, 1),
    Sketcher.Constraint("Tangent", 15, 2, 16, 1),
    Sketcher.Constraint("Tangent", 16, 2, 17, 1),
    Sketcher.Constraint("Coincident", 17, 2, 18, 1),
    Sketcher.Constraint("Coincident", 18, 2, 15, 1),
    Sketcher.Constraint("Vertical", 0),
    Sketcher.Constraint("Vertical", 2),
    Sketcher.Constraint("Horizontal", 5),
    Sketcher.Constraint("Horizontal", 7),
    Sketcher.Constraint("Vertical", 10),
    Sketcher.Constraint("Vertical", 12),
    Sketcher.Constraint("Horizontal", 15),
    Sketcher.Constraint("Horizontal", 17),
    Sketcher.Constraint("Coincident", 3, 3, -1, 1),
    Sketcher.Constraint("Coincident", 8, 3, -1, 1),
    Sketcher.Constraint("Coincident", 13, 3, -1, 1),
    Sketcher.Constraint("Coincident", 18, 3, -1, 1),
    Sketcher.Constraint("Coincident", 4, 3, 1, 3),
    Sketcher.Constraint("Coincident", 9, 3, 6, 3),
    Sketcher.Constraint("Coincident", 14, 3, 11, 3),
    Sketcher.Constraint("Coincident", 19, 3, 16, 3),
    Sketcher.Constraint("Equal", 1, 6),
    Sketcher.Constraint("Equal", 3, 8),
    Sketcher.Constraint("Equal", 4, 9),
    Sketcher.Constraint("Equal", 6, 11),
    Sketcher.Constraint("Equal", 8, 13),
    Sketcher.Constraint("Equal", 9, 14),
    Sketcher.Constraint("Equal", 11, 16),
    Sketcher.Constraint("Equal", 13, 18),
    Sketcher.Constraint("Equal", 14, 19),
    Sketcher.Constraint("Symmetric", 1, 3, 11, 3, -1, 1),
    Sketcher.Constraint("Symmetric", 6, 3, 16, 3, -1, 1),
    Sketcher.Constraint("PointOnObject", 1, 3, -2),
    Sketcher.Constraint("PointOnObject", 6, 3, -1),
    Sketcher.Constraint("Equal", 17, 0),
    Sketcher.Constraint("Radius", 1, Q("6 mm")),
    Sketcher.Constraint("Diameter", 4, Q("5.5 mm")),
    Sketcher.Constraint("Radius", 3, Q("37.9 mm")),
    Sketcher.Constraint("DistanceY", -1, 1, 1, 3, Q("33 mm")),
])
sketch16.setExpression("Constraints[46]", "Params.sketch16_radius")
sketch16.setExpression("Constraints[47]", "Params.sketch16_diameter")
sketch16.setExpression("Constraints[48]", "Params.sketch16_radius2")
pad4 = body2.newObject("PartDesign::Pad", "Pad003")
pad4.Profile = sketch16
pad4.setExpression("Length", "Params.pad4_length")

# Sketch on XZ plane
sketch17 = body2.newObject("Sketcher::SketchObject", "Sketch016")
sketch17.AttachmentSupport = (doc.getObject("XZ_Plane001"), [""])
sketch17.MapMode = "FlatFace"
sketch17.AttachmentOffset = App.Placement(Vector(0, 0, 20), App.Rotation())
add_polygon(sketch17, [(-43.899541, 46.549823), (-43.899541, -46.549823), (43.899541, -46.549823), (43.899541, 46.549823)])  # lines 0-3
sketch17.addConstraint([
    Sketcher.Constraint("Vertical", 0),
    Sketcher.Constraint("Horizontal", 1),
    Sketcher.Constraint("Vertical", 2),
    Sketcher.Constraint("Horizontal", 3),
    Sketcher.Constraint("Symmetric", 0, 2, 2, 2, -1, 1),
    Sketcher.Constraint("DistanceX", 1, 1, 1, 2, Q("87.799081 mm")),
    Sketcher.Constraint("DistanceY", 0, 2, 0, 1, Q("93.099645 mm")),
])
pocket13 = body2.newObject("PartDesign::Pocket", "Pocket012")
pocket13.Profile = sketch17
pocket13.setExpression("Length", "Params.pocket13_length")

# Sketch on XZ plane
sketch18 = body2.newObject("Sketcher::SketchObject", "Sketch017")
sketch18.AttachmentSupport = (doc.getObject("XZ_Plane001"), [""])
sketch18.MapMode = "FlatFace"
sketch18.AttachmentOffset = App.Placement(Vector(0, 0, -15), App.Rotation())
sketch18.addGeometry(Part.Circle(Vector(0, 0, 0), Vector(0, 0, 1), 30), False)
sketch18.addConstraint([
    Sketcher.Constraint("Coincident", 0, 3, -1, 1),
    Sketcher.Constraint("Diameter", 0, Q("60 mm")),
])
sketch18.setExpression("Constraints[1]", "Params.sketch18_diameter")
pocket14 = body2.newObject("PartDesign::Pocket", "Pocket013")
pocket14.Profile = sketch18
pocket14.Type = "ThroughAll"
pocket14.Reversed = True

# Sketch on XZ plane
sketch19 = body2.newObject("Sketcher::SketchObject", "Sketch018")
sketch19.AttachmentSupport = (doc.getObject("XZ_Plane001"), [""])
sketch19.MapMode = "FlatFace"
sketch19.AttachmentOffset = App.Placement(Vector(0, 0, 10), App.Rotation())
sketch19.addGeometry(Part.Circle(Vector(0, 0, 0), Vector(0, 0, 1), 41.9), False)
sketch19.addConstraint([
    Sketcher.Constraint("Coincident", 0, 3, -1, 1),
    Sketcher.Constraint("Diameter", 0, Q("83.8 mm")),
])
sketch19.setExpression("Constraints[1]", "Params.sketch19_diameter")
pocket15 = body2.newObject("PartDesign::Pocket", "Pocket014")
pocket15.Profile = sketch19
pocket15.setExpression("Length", "Params.pocket15_length")

doc.recompute()
